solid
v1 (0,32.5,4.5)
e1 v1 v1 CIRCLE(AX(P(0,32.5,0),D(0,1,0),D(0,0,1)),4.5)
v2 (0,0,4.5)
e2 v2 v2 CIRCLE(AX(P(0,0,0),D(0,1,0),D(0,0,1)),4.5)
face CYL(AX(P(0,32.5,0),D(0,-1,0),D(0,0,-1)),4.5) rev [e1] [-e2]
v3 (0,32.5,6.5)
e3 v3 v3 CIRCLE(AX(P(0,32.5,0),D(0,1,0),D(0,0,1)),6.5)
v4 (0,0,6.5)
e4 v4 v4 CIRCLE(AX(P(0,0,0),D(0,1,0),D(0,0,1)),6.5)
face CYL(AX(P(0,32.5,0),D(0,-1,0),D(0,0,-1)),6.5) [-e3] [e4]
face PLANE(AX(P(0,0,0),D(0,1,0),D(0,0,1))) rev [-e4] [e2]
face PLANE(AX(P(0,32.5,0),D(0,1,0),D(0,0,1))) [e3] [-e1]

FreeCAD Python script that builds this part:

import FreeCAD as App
import Part
import Sketcher

V = App.Vector

doc = App.newDocument("Part")
params = doc.addObject("Spreadsheet::Sheet", "Params")
for row, (alias, value) in enumerate([
    ("sketch1_diameter", "13 mm"),
    ("sketch1_diameter2", "9 mm"),
    ("pad1_length", "32.5 mm"),
], start=1):
    params.set(f"A{row}", alias)
    params.set(f"B{row}", "=" + value)
    params.setAlias(f"B{row}", alias)

body = doc.addObject("PartDesign::Body", "Body")

# Sketch on XZ plane
sketch1 = body.newObject("Sketcher::SketchObject", "Sketch")
sketch1.AttachmentSupport = (doc.getObject("XZ_Plane"), [""])
sketch1.MapMode = "FlatFace"
sketch1.addGeometry([
    Part.Circle(V(0, 0, 0), V(0, 0, 1), 6.5),
    Part.Circle(V(0, 0, 0), V(0, 0, 1), 4.5),
], False)
sketch1.addConstraint([
    Sketcher.Constraint("Coincident", 0, 3, -1, 1),
    Sketcher.Constraint("Coincident", 1, 3, -1, 1),
    Sketcher.Constraint("Diameter", 0, 13.0),
    Sketcher.Constraint("Diameter", 1, 9.0),
])
sketch1.setExpression("Constraints[2]", "Params.sketch1_diameter")
sketch1.setExpression("Constraints[3]", "Params.sketch1_diameter2")
pad1 = body.newObject("PartDesign::Pad", "Pad")
pad1.Profile = sketch1
pad1.setExpression("Length", "Params.pad1_length")
pad1.Reversed = True

doc.recompute()
